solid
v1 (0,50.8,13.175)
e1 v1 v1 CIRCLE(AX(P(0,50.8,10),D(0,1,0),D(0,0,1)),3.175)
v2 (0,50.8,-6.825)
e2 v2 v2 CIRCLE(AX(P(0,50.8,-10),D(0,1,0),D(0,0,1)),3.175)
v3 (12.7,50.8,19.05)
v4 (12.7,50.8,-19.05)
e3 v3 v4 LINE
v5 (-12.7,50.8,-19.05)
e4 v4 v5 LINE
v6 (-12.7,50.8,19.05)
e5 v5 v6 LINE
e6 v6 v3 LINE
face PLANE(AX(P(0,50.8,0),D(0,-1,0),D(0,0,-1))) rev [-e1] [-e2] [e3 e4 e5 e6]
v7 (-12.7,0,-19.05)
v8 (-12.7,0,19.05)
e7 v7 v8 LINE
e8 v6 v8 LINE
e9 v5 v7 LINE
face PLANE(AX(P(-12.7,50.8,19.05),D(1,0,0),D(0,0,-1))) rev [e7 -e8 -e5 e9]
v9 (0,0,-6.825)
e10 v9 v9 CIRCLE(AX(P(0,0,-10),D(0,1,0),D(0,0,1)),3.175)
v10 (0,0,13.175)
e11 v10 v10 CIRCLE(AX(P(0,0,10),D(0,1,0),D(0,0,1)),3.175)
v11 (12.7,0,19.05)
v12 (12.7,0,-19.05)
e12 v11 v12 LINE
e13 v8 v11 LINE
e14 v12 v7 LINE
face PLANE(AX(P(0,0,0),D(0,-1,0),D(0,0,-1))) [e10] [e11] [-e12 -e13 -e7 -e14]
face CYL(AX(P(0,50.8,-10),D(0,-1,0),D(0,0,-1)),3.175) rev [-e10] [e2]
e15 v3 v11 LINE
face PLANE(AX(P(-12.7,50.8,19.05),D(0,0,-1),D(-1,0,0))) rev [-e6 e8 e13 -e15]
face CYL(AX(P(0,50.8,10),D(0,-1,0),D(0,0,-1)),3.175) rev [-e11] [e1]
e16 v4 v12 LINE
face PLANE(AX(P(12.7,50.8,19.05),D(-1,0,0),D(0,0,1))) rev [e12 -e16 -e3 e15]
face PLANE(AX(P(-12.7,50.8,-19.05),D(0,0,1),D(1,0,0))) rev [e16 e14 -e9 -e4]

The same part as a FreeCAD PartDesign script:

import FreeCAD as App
import Part
import Sketcher

V = App.Vector
Q = App.Units.Quantity


def add_polygon(sketch, points):
    """Adds a closed chain of lines whose ends are joined by coincident constraints."""
    first, n = sketch.GeometryCount, len(points)
    for a, b in zip(points, points[1:] + points[:1]):
        sketch.addGeometry(Part.LineSegment(App.Vector(*a, 0), App.Vector(*b, 0)), False)
    for i in range(n):
        sketch.addConstraint(Sketcher.Constraint("Coincident", first + i, 2, first + (i + 1) % n, 1))

doc = App.newDocument("Part")
body = doc.addObject("PartDesign::Body", "Body")

# Sketch on XZ plane
sketch1 = doc.addObject("Sketcher::SketchObject", "Sketch")
body.addObject(sketch1)
sketch1.AttachmentSupport = (doc.XZ_Plane, [""])
sketch1.MapMode = "FlatFace"
add_polygon(sketch1, [(-12.7, -19.1), (-12.7, 19.1), (12.7, 19.1), (12.7, -19.1)])  # lines 0-3
sketch1.addGeometry(Part.Circle(V(0, 10, 0), V(0, 0, 1), 3.2), False)  # 4
sketch1.addGeometry(Part.Circle(V(0, -10, 0), V(0, 0, 1), 3.2), False)  # 5
sketch1.addConstraint(Sketcher.Constraint("Vertical", 0))
sketch1.addConstraint(Sketcher.Constraint("Horizontal", 1))
sketch1.addConstraint(Sketcher.Constraint("Vertical", 2))
sketch1.addConstraint(Sketcher.Constraint("Horizontal", 3))
sketch1.addConstraint(Sketcher.Constraint("Equal", 4, 5))
sketch1.addConstraint(Sketcher.Constraint("Symmetric", 4, 3, 5, 3, -1, 1))
sketch1.addConstraint(Sketcher.Constraint("Symmetric", 0, 2, 2, 2, -1, 1))
sketch1.addConstraint(Sketcher.Constraint("PointOnObject", 4, 3, -2))
sketch1.addConstraint(Sketcher.Constraint("Diameter", 4, Q("0.25 in")))
sketch1.addConstraint(Sketcher.Constraint("DistanceX", 1, 1, 1, 2, Q("1 in")))
sketch1.addConstraint(Sketcher.Constraint("DistanceY", 0, 1, 0, 2, Q("1.5 in")))
sketch1.addConstraint(Sketcher.Constraint("DistanceY", -1, 1, 4, 3, 10.0))
pad1 = doc.addObject("PartDesign::Pad", "Pad")
body.addObject(pad1)
pad1.Profile = sketch1
pad1.Length = Q("2 in")
pad1.Reversed = True

doc.recompute()
